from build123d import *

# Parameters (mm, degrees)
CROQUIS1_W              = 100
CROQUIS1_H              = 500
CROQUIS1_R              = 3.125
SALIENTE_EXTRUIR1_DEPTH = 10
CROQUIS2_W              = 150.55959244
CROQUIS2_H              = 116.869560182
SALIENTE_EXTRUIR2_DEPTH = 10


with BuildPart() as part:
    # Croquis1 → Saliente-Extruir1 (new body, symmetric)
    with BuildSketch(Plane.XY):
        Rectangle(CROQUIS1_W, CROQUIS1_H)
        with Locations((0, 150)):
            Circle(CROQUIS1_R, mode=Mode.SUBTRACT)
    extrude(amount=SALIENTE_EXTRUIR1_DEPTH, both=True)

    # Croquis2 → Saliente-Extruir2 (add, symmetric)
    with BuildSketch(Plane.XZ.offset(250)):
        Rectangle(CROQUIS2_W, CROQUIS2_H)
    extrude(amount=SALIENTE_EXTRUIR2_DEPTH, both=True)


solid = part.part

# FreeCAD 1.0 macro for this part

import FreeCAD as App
import Part
import Sketcher

doc = App.newDocument("Part")
body = doc.addObject("PartDesign::Body", "Body")

sketch1 = body.newObject("Sketcher::SketchObject", "Sketch")
sketch1.AttachmentSupport = (doc.getObject("XY_Plane"), [""])
sketch1.MapMode = "FlatFace"
sketch1.addGeometry([
    Part.LineSegment(App.Vector(-50, 250, 0), App.Vector(-50, -250, 0)),
    Part.LineSegment(App.Vector(-50, -250, 0), App.Vector(50, -250, 0)),
    Part.LineSegment(App.Vector(50, -250, 0), App.Vector(50, 250, 0)),
    Part.LineSegment(App.Vector(50, 250, 0), App.Vector(-50, 250, 0)),
    Part.Circle(App.Vector(0, 150, 0), App.Vector(0, 0, 1), 3.125),
], False)
sketch1.addConstraint([
    Sketcher.Constraint("Coincident", 0, 2, 1, 1),
    Sketcher.Constraint("Coincident", 1, 2, 2, 1),
    Sketcher.Constraint("Coincident", 2, 2, 3, 1),
    Sketcher.Constraint("Coincident", 3, 2, 0, 1),
    Sketcher.Constraint("Vertical", 0),
    Sketcher.Constraint("Horizontal", 1),
    Sketcher.Constraint("Vertical", 2),
    Sketcher.Constraint("Horizontal", 3),
    Sketcher.Constraint("Symmetric", 0, 2, 2, 2, -1, 1),
    Sketcher.Constraint("PointOnObject", 4, 3, -2),
    Sketcher.Constraint("Diameter", 4, 6.25),
    Sketcher.Constraint("DistanceX", 1, 1, 1, 2, 100.0),
    Sketcher.Constraint("DistanceY", 0, 2, 0, 1, 500.0),
    Sketcher.Constraint("DistanceY", -1, 1, 4, 3, 150.0),
])
pad1 = body.newObject("PartDesign::Pad", "Pad")
pad1.Profile = sketch1
pad1.Length = 20
pad1.Midplane = True

sketch2 = body.newObject("Sketcher::SketchObject", "Sketch001")
sketch2.AttachmentSupport = (doc.getObject("XZ_Plane"), [""])
sketch2.MapMode = "FlatFace"
sketch2.AttachmentOffset = App.Placement(App.Vector(0, 0, 250), App.Rotation())
sketch2.addGeometry([
    Part.LineSegment(App.Vector(-75.279796, 58.43478, 0), App.Vector(-75.279796, -58.43478, 0)),
    Part.LineSegment(App.Vector(-75.279796, -58.43478, 0), App.Vector(75.279796, -58.43478, 0)),
    Part.LineSegment(App.Vector(75.279796, -58.43478, 0), App.Vector(75.279796, 58.43478, 0)),
    Part.LineSegment(App.Vector(75.279796, 58.43478, 0), App.Vector(-75.279796, 58.43478, 0)),
], False)
sketch2.addConstraint([
    Sketcher.Constraint("Coincident", 0, 2, 1, 1),
    Sketcher.Constraint("Coincident", 1, 2, 2, 1),
    Sketcher.Constraint("Coincident", 2, 2, 3, 1),
    Sketcher.Constraint("Coincident", 3, 2, 0, 1),
    Sketcher.Constraint("Vertical", 0),
    Sketcher.Constraint("Horizontal", 1),
    Sketcher.Constraint("Vertical", 2),
    Sketcher.Constraint("Horizontal", 3),
    Sketcher.Constraint("Symmetric", 0, 2, 2, 2, -1, 1),
    Sketcher.Constraint("DistanceY", 0, 2, 0, 1, 116.86956),
    Sketcher.Constraint("DistanceX", 1, 1, 1, 2, 150.559592),
])
pad2 = body.newObject("PartDesign::Pad", "Pad001")
pad2.Profile = sketch2
pad2.Length = 20
pad2.Midplane = True

doc.recompute()
